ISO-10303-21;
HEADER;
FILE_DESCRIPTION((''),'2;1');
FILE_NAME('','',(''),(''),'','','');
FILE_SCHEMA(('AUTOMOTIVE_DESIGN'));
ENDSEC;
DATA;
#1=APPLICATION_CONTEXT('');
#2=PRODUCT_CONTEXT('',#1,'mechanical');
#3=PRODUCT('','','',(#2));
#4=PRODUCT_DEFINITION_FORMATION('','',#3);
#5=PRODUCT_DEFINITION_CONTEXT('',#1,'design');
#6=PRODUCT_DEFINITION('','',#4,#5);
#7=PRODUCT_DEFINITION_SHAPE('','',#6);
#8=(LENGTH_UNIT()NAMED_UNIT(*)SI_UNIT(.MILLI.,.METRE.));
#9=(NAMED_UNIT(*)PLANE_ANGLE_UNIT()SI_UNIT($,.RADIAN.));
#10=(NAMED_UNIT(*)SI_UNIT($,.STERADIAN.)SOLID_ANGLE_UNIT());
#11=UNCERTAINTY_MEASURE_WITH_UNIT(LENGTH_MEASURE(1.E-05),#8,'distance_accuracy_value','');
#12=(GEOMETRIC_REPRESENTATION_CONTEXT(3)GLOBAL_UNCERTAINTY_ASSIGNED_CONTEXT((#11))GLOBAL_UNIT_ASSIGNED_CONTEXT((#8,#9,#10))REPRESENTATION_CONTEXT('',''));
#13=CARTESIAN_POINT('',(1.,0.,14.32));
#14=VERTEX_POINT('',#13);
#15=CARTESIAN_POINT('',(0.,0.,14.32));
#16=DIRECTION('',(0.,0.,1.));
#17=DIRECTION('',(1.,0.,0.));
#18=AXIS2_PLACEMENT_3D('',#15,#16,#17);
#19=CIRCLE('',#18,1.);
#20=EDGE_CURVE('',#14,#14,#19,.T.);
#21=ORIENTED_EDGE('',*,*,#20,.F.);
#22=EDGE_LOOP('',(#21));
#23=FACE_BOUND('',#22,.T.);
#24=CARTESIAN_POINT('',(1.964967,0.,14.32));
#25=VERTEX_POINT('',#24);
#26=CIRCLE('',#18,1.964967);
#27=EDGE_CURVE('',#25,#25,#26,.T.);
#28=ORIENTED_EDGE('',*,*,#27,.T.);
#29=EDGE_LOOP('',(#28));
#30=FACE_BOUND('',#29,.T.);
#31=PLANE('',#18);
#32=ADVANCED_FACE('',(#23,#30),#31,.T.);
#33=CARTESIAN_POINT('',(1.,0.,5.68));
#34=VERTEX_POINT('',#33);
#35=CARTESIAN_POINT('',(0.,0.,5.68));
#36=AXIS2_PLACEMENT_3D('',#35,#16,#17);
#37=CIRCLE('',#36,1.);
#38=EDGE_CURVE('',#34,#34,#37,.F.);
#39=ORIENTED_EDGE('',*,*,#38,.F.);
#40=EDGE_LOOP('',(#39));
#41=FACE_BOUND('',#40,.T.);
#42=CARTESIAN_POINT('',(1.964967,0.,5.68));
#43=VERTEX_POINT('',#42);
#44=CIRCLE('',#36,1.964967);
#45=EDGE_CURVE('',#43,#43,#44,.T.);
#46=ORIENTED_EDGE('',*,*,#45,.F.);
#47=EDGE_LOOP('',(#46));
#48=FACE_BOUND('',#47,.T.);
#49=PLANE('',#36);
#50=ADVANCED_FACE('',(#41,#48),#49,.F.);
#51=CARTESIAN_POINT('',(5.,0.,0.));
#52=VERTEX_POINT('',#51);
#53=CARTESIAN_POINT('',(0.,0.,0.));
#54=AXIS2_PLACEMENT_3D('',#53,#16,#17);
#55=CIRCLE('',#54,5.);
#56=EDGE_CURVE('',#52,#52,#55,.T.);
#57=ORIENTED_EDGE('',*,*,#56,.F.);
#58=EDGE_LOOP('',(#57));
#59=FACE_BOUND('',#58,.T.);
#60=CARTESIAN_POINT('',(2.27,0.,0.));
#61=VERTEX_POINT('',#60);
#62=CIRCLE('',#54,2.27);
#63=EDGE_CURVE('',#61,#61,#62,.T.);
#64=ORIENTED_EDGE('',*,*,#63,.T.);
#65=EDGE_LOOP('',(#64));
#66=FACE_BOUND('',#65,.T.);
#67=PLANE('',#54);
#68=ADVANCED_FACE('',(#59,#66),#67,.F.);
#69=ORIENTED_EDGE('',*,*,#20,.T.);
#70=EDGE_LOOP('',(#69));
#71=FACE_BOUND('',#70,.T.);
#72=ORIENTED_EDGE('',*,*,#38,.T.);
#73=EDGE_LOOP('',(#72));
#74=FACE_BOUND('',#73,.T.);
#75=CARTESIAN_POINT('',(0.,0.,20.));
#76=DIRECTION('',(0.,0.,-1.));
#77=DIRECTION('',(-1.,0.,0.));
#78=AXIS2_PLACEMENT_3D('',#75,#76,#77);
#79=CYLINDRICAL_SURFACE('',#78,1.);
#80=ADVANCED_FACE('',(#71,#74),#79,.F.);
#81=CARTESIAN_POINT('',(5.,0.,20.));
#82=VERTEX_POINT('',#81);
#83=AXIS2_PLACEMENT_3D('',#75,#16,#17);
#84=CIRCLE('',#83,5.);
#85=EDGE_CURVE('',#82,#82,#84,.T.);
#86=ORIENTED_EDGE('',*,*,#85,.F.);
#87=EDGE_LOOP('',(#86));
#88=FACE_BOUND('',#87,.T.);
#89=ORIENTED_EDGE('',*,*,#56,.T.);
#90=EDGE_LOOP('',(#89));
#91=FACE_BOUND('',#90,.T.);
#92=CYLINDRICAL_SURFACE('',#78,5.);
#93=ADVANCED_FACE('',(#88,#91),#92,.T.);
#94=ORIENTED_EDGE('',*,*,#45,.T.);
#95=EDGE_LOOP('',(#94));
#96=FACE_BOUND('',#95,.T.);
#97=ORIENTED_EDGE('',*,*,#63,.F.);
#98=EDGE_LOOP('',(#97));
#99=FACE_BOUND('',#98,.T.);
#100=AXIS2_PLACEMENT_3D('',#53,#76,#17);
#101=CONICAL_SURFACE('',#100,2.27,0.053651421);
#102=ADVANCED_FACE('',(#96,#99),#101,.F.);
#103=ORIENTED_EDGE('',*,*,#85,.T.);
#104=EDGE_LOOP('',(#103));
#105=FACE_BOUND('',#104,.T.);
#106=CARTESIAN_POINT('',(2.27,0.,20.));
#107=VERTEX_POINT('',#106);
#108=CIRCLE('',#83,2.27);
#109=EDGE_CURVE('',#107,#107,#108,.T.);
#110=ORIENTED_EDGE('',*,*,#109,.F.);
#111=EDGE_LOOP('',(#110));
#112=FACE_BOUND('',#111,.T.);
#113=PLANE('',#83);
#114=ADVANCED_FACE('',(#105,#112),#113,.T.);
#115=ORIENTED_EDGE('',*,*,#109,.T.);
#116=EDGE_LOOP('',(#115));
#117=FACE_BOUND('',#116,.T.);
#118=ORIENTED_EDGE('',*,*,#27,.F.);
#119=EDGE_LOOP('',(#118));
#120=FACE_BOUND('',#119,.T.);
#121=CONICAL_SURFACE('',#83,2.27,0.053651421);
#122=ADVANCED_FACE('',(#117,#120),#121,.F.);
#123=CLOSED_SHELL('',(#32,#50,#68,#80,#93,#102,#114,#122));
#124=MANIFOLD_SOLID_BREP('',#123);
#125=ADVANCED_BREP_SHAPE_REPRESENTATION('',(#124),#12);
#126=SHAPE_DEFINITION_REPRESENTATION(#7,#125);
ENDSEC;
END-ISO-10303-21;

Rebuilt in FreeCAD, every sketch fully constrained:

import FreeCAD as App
import Part
import Sketcher

doc = App.newDocument("Part")
body = doc.addObject("PartDesign::Body", "Body")

# Sketch on XY plane
sketch1 = body.newObject("Sketcher::SketchObject", "Sketch")
sketch1.AttachmentSupport = (doc.getObject("XY_Plane"), [""])
sketch1.MapMode = "FlatFace"
sketch1.addGeometry(Part.Circle(App.Vector(0, 0, 0), App.Vector(0, 0, 1), 5), False)
sketch1.addConstraint(Sketcher.Constraint("Coincident", 0, 3, -1, 1))
sketch1.addConstraint(Sketcher.Constraint("Diameter", 0, 10.0))
pad1 = body.newObject("PartDesign::Pad", "Pad")
pad1.Profile = sketch1
pad1.Length = 20

# Sketch on XY plane
sketch2 = body.newObject("Sketcher::SketchObject", "Sketch001")
sketch2.AttachmentSupport = (doc.getObject("XY_Plane"), [""])
sketch2.MapMode = "FlatFace"
sketch2.addGeometry(Part.Circle(App.Vector(0, 0, 0), App.Vector(0, 0, 1), 2.27), False)
sketch2.addConstraint(Sketcher.Constraint("Coincident", 0, 3, -1, 1))
sketch2.addConstraint(Sketcher.Constraint("Diameter", 0, 4.54))
pocket1 = body.newObject("PartDesign::Pocket", "Pocket")
pocket1.Profile = sketch2
pocket1.Length = 5.68
pocket1.Reversed = True
pocket1.TaperAngle = -3.074

# Sketch on XY plane
sketch3 = body.newObject("Sketcher::SketchObject", "Sketch002")
sketch3.AttachmentSupport = (doc.getObject("XY_Plane"), [""])
sketch3.MapMode = "FlatFace"
sketch3.addGeometry(Part.Circle(App.Vector(0, 0, 0), App.Vector(0, 0, 1), 1), False)
sketch3.addConstraint(Sketcher.Constraint("Coincident", 0, 3, -1, 1))
sketch3.addConstraint(Sketcher.Constraint("Diameter", 0, 2.0))
pocket2 = body.newObject("PartDesign::Pocket", "Pocket001")
pocket2.Profile = sketch3
pocket2.Type = "ThroughAll"
pocket2.Reversed = True

# Sketch on XY plane
sketch4 = body.newObject("Sketcher::SketchObject", "Sketch003")
sketch4.AttachmentSupport = (doc.getObject("XY_Plane"), [""])
sketch4.MapMode = "FlatFace"
sketch4.AttachmentOffset = App.Placement(App.Vector(0, 0, 20), App.Rotation())
sketch4.addGeometry(Part.Circle(App.Vector(0, 0, 0), App.Vector(0, 0, 1), 2.27), False)
sketch4.addConstraint(Sketcher.Constraint("Coincident", 0, 3, -1, 1))
sketch4.addConstraint(Sketcher.Constraint("Diameter", 0, 4.54))
pocket3 = body.newObject("PartDesign::Pocket", "Pocket002")
pocket3.Profile = sketch4
pocket3.Length = 5.68
pocket3.TaperAngle = -3.074

doc.recompute()
